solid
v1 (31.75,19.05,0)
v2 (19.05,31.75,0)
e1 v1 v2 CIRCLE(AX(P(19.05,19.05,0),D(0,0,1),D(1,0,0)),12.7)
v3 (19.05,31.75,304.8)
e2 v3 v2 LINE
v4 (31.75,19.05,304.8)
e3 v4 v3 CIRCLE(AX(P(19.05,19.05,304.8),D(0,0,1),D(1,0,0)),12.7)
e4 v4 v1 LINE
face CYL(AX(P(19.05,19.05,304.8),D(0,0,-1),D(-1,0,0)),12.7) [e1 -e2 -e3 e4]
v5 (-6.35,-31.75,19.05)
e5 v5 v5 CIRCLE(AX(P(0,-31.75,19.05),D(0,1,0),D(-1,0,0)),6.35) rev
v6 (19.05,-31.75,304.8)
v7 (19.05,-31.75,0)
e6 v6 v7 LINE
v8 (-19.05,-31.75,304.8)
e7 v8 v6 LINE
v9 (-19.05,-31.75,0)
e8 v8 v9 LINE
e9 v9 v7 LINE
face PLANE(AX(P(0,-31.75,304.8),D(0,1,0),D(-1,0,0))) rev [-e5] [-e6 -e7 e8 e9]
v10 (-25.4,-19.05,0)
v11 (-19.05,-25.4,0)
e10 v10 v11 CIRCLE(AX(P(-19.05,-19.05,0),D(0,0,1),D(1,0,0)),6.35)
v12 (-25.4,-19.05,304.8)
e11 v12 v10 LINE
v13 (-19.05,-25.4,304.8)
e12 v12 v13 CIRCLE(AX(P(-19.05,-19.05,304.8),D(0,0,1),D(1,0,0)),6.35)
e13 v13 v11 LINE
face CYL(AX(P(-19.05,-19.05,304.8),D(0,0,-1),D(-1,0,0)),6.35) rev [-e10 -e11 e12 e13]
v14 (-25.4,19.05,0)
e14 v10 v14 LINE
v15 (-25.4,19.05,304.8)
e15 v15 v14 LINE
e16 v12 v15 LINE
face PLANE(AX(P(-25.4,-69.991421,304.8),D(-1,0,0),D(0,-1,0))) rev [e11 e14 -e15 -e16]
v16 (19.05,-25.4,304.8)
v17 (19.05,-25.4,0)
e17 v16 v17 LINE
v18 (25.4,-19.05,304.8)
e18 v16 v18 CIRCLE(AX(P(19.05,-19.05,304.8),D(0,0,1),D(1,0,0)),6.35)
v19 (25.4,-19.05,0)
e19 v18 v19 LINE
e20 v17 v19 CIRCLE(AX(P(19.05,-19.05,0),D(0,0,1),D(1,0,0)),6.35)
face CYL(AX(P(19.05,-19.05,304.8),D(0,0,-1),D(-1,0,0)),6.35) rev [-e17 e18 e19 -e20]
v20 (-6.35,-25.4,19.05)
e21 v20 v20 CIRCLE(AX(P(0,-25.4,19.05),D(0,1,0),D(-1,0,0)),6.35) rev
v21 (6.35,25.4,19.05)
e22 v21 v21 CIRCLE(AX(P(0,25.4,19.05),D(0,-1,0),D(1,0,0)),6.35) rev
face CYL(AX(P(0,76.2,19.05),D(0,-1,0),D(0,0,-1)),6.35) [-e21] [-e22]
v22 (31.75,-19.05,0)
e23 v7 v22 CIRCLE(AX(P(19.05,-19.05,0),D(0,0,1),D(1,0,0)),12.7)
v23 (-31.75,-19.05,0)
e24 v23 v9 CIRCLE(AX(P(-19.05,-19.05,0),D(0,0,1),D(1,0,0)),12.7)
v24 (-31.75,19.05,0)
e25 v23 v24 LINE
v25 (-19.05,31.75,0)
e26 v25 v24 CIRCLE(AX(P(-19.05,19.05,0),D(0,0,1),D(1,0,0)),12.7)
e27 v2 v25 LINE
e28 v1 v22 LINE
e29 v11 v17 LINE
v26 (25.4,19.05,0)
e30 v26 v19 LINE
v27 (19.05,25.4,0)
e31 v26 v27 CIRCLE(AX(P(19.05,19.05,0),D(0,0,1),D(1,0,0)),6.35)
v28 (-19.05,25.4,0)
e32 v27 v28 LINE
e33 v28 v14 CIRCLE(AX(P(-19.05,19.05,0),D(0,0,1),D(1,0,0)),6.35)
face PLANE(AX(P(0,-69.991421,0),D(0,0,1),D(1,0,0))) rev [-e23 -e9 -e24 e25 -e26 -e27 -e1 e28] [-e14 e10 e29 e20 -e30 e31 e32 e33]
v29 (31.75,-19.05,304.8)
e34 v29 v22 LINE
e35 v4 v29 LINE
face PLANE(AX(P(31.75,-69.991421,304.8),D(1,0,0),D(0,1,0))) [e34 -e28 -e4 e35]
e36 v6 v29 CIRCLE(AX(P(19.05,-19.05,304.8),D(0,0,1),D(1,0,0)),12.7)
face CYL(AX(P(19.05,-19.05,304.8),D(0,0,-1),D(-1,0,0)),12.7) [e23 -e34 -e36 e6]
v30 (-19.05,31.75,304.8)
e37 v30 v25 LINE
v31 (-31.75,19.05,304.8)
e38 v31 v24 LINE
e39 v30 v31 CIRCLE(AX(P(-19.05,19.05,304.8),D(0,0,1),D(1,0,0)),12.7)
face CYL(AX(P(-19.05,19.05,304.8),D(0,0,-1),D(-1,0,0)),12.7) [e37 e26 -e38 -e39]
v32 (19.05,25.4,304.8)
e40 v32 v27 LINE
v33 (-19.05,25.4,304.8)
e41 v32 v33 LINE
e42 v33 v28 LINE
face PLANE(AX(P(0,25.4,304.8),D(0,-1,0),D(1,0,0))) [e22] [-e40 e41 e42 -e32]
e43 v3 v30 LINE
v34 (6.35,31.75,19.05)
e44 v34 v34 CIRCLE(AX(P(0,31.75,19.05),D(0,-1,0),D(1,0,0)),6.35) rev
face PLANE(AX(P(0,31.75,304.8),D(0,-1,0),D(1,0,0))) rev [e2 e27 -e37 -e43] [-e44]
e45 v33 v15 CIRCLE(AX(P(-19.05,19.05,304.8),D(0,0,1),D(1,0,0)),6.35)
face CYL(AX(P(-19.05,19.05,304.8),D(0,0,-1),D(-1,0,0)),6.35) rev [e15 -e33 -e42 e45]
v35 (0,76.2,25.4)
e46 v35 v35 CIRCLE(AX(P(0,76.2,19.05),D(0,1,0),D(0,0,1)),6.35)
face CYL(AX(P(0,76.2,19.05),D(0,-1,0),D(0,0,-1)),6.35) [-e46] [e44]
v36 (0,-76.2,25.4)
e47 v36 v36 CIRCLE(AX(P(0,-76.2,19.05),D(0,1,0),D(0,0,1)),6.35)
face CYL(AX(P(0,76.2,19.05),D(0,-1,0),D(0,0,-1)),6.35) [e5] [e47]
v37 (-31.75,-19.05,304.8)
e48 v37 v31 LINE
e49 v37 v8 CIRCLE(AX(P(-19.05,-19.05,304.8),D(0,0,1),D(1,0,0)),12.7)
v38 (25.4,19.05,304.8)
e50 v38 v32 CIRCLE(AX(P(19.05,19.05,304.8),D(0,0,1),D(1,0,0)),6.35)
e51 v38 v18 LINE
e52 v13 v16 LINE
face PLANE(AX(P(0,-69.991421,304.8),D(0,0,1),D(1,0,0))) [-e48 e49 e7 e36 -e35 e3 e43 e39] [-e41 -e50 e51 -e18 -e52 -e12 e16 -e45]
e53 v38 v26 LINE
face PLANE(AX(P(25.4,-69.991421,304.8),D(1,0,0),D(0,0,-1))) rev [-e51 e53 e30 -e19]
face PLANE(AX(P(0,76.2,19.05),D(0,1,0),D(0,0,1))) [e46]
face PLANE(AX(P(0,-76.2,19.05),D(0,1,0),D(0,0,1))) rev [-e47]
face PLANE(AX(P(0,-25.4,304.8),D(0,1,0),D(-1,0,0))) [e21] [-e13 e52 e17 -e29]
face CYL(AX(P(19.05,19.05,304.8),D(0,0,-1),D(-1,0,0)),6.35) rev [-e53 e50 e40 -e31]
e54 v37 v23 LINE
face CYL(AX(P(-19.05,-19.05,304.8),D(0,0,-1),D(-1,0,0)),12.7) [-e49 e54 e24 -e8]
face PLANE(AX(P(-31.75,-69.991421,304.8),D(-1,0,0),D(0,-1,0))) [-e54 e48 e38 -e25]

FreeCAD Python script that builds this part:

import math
import FreeCAD as App
import Part
import Sketcher
Q = App.Units.Quantity

doc = App.newDocument("Part")
params = doc.addObject("Spreadsheet::Sheet", "Params")
for row, (alias, value) in enumerate([
    ("sketch1_radius", "0.5 in"),
    ("sketch1_radius2", "0.25 in"),
    ("sketch1_width", "1.5 in"),
    ("pad1_length", "12 in"),
    ("sketch2_diameter", "0.5 in"),
    ("pad2_length", "6 in"),
], start=1):
    params.set(f"A{row}", alias)
    params.set(f"B{row}", "=" + value)
    params.setAlias(f"B{row}", alias)

body = doc.addObject("PartDesign::Body", "Body")

# Sketch on XY plane
sketch1 = doc.addObject("Sketcher::SketchObject", "Sketch")
body.addObject(sketch1)
sketch1.AttachmentSupport = (doc.XY_Plane, [""])
sketch1.MapMode = "FlatFace"
sketch1.addGeometry([
    Part.LineSegment(App.Vector(19, 32, 0), App.Vector(-19, 32, 0)),  # 0
    Part.ArcOfCircle(Part.Circle(App.Vector(-19, 19, 0), App.Vector(0, 0, 1), 13), math.radians(90), math.radians(180)),  # 1
    Part.LineSegment(App.Vector(-32, 19, 0), App.Vector(-32, -19, 0)),  # 2
    Part.ArcOfCircle(Part.Circle(App.Vector(-19, -19, 0), App.Vector(0, 0, 1), 13), math.radians(180), math.radians(270)),  # 3
    Part.LineSegment(App.Vector(-19, -32, 0), App.Vector(19, -32, 0)),  # 4
    Part.ArcOfCircle(Part.Circle(App.Vector(19, -19, 0), App.Vector(0, 0, 1), 13), math.radians(-90), math.radians(0)),  # 5
    Part.LineSegment(App.Vector(32, -19, 0), App.Vector(32, 19, 0)),  # 6
    Part.ArcOfCircle(Part.Circle(App.Vector(19, 19, 0), App.Vector(0, 0, 1), 13), math.radians(0), math.radians(90)),  # 7
    Part.ArcOfCircle(Part.Circle(App.Vector(-19, -19, 0), App.Vector(0, 0, 1), 6), math.radians(180), math.radians(270)),  # 8
    Part.LineSegment(App.Vector(-25, -19, 0), App.Vector(-25, 19, 0)),  # 9
    Part.ArcOfCircle(Part.Circle(App.Vector(-19, 19, 0), App.Vector(0, 0, 1), 6), math.radians(90), math.radians(180)),  # 10
    Part.LineSegment(App.Vector(-19, 25, 0), App.Vector(19, 25, 0)),  # 11
    Part.ArcOfCircle(Part.Circle(App.Vector(19, 19, 0), App.Vector(0, 0, 1), 6), math.radians(0), math.radians(90)),  # 12
    Part.LineSegment(App.Vector(25, 19, 0), App.Vector(25, -19, 0)),  # 13
    Part.ArcOfCircle(Part.Circle(App.Vector(19, -19, 0), App.Vector(0, 0, 1), 6), math.radians(-90), math.radians(0)),  # 14
    Part.LineSegment(App.Vector(19, -25, 0), App.Vector(-19, -25, 0)),  # 15
], False)
sketch1.addConstraint([
    Sketcher.Constraint("Tangent", 0, 2, 1, 1),
    Sketcher.Constraint("Tangent", 1, 2, 2, 1),
    Sketcher.Constraint("Tangent", 2, 2, 3, 1),
    Sketcher.Constraint("Tangent", 3, 2, 4, 1),
    Sketcher.Constraint("Tangent", 4, 2, 5, 1),
    Sketcher.Constraint("Tangent", 5, 2, 6, 1),
    Sketcher.Constraint("Tangent", 6, 2, 7, 1),
    Sketcher.Constraint("Tangent", 7, 2, 0, 1),
    Sketcher.Constraint("Tangent", 8, 1, 9, 1),
    Sketcher.Constraint("Tangent", 9, 2, 10, 2),
    Sketcher.Constraint("Tangent", 10, 1, 11, 1),
    Sketcher.Constraint("Tangent", 11, 2, 12, 2),
    Sketcher.Constraint("Tangent", 12, 1, 13, 1),
    Sketcher.Constraint("Tangent", 13, 2, 14, 2),
    Sketcher.Constraint("Tangent", 14, 1, 15, 1),
    Sketcher.Constraint("Tangent", 15, 2, 8, 2),
    Sketcher.Constraint("Horizontal", 0),
    Sketcher.Constraint("Vertical", 2),
    Sketcher.Constraint("Horizontal", 4),
    Sketcher.Constraint("Vertical", 6),
    Sketcher.Constraint("Vertical", 9),
    Sketcher.Constraint("Horizontal", 11),
    Sketcher.Constraint("Vertical", 13),
    Sketcher.Constraint("Horizontal", 15),
    Sketcher.Constraint("Coincident", 8, 3, 3, 3),
    Sketcher.Constraint("Coincident", 10, 3, 1, 3),
    Sketcher.Constraint("Coincident", 12, 3, 7, 3),
    Sketcher.Constraint("Equal", 1, 3),
    Sketcher.Constraint("Equal", 3, 5),
    Sketcher.Constraint("Equal", 5, 7),
    Sketcher.Constraint("Equal", 12, 14),
    Sketcher.Constraint("Symmetric", 1, 3, 5, 3, -1, 1),
    Sketcher.Constraint("Equal", 15, 2),
    Sketcher.Constraint("Radius", 1, Q("0.5 in")),
    Sketcher.Constraint("Radius", 8, Q("0.25 in")),
    Sketcher.Constraint("DistanceX", 0, 2, 0, 1, Q("1.5 in")),
])
sketch1.setExpression("Constraints[33]", "Params.sketch1_radius")
sketch1.setExpression("Constraints[34]", "Params.sketch1_radius2")
sketch1.setExpression("Constraints[35]", "Params.sketch1_width")
pad1 = doc.addObject("PartDesign::Pad", "Pad")
body.addObject(pad1)
pad1.Profile = sketch1
pad1.setExpression("Length", "Params.pad1_length")

# Sketch on XZ plane
sketch2 = doc.addObject("Sketcher::SketchObject", "Sketch001")
body.addObject(sketch2)
sketch2.AttachmentSupport = (doc.XZ_Plane, [""])
sketch2.MapMode = "FlatFace"
sketch2.addGeometry(Part.Circle(App.Vector(0, 19, 0), App.Vector(0, 0, 1), 6), False)
sketch2.addConstraint([
    Sketcher.Constraint("PointOnObject", 0, 3, -2),
    Sketcher.Constraint("Diameter", 0, Q("0.5 in")),
    Sketcher.Constraint("DistanceY", -1, 1, 0, 3, Q("0.75 in")),
])
sketch2.setExpression("Constraints[1]", "Params.sketch2_diameter")
pad2 = doc.addObject("PartDesign::Pad", "Pad001")
body.addObject(pad2)
pad2.Profile = sketch2
pad2.setExpression("Length", "Params.pad2_length")
pad2.Midplane = True

doc.recompute()
